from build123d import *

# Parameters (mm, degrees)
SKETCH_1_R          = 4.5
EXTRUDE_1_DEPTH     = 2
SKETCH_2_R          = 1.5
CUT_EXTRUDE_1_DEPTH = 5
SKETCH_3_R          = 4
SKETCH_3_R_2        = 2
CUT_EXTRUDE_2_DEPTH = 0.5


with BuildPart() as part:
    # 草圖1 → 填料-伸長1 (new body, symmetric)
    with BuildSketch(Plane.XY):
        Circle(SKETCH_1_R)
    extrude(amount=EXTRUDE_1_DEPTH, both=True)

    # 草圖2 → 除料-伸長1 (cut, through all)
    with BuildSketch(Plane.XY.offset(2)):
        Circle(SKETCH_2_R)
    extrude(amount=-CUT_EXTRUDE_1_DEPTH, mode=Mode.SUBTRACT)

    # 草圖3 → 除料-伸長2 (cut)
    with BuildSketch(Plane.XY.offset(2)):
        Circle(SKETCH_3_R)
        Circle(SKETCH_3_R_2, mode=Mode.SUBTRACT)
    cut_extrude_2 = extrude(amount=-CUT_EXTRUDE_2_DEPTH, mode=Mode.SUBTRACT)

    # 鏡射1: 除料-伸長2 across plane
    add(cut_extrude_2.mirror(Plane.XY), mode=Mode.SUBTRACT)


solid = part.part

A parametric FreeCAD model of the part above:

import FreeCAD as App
import Part
import Sketcher
from FreeCAD import Vector

doc = App.newDocument("Part")
body = doc.addObject("PartDesign::Body", "Body")

# Sketch on XY plane
sketch1 = body.newObject("Sketcher::SketchObject", "Sketch")
sketch1.AttachmentSupport = (doc.getObject("XY_Plane"), [""])
sketch1.MapMode = "FlatFace"
sketch1.addGeometry(Part.Circle(Vector(0, 0, 0), Vector(0, 0, 1), 4.5), False)
sketch1.addConstraint([
    Sketcher.Constraint("Coincident", 0, 3, -1, 1),
    Sketcher.Constraint("Diameter", 0, 9.0),
])
pad1 = body.newObject("PartDesign::Pad", "Pad")
pad1.Profile = sketch1
pad1.Length = 4
pad1.Midplane = True

# Sketch on XY plane
sketch2 = body.newObject("Sketcher::SketchObject", "Sketch001")
sketch2.AttachmentSupport = (doc.getObject("XY_Plane"), [""])
sketch2.MapMode = "FlatFace"
sketch2.AttachmentOffset = App.Placement(Vector(0, 0, 2), App.Rotation())
sketch2.addGeometry(Part.Circle(Vector(0, 0, 0), Vector(0, 0, 1), 1.5), False)
sketch2.addConstraint([
    Sketcher.Constraint("Coincident", 0, 3, -1, 1),
    Sketcher.Constraint("Diameter", 0, 3.0),
])
pocket1 = body.newObject("PartDesign::Pocket", "Pocket")
pocket1.Profile = sketch2
pocket1.Type = "ThroughAll"

# Sketch on XY plane
sketch3 = body.newObject("Sketcher::SketchObject", "Sketch002")
sketch3.AttachmentSupport = (doc.getObject("XY_Plane"), [""])
sketch3.MapMode = "FlatFace"
sketch3.AttachmentOffset = App.Placement(Vector(0, 0, 2), App.Rotation())
sketch3.addGeometry([
    Part.Circle(Vector(0, 0, 0), Vector(0, 0, 1), 4),
    Part.Circle(Vector(0, 0, 0), Vector(0, 0, 1), 2),
], False)
sketch3.addConstraint([
    Sketcher.Constraint("Coincident", 0, 3, -1, 1),
    Sketcher.Constraint("Coincident", 1, 3, -1, 1),
    Sketcher.Constraint("Diameter", 0, 8.0),
    Sketcher.Constraint("Diameter", 1, 4.0),
])
pocket2 = body.newObject("PartDesign::Pocket", "Pocket001")
pocket2.Profile = sketch3
pocket2.Length = 0.5
doc.recompute()

mirrored = body.newObject("PartDesign::Mirrored", "Mirrored")
mirrored.Originals = [pocket2]
mirrored.MirrorPlane = (doc.getObject("XY_Plane"), [""])
body.Tip = mirrored

doc.recompute()
